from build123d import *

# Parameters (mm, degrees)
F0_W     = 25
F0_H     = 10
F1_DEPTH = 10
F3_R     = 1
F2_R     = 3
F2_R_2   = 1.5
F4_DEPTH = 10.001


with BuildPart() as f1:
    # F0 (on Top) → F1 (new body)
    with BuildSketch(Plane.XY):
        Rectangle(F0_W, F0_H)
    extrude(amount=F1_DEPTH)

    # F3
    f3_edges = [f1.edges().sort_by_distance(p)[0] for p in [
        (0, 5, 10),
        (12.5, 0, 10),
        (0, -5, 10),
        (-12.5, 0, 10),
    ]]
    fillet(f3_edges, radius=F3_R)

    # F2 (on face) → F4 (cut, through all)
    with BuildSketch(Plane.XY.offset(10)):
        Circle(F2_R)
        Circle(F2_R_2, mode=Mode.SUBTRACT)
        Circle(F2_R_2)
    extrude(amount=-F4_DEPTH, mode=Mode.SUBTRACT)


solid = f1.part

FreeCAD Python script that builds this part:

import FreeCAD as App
import Part
import Sketcher

V = App.Vector


def edges_at(feature, points):
    """Names of the edges that pass closest to the given points."""
    edges = feature.Shape.Edges
    near = lambda p: min(range(len(edges)), key=lambda i: edges[i].distToShape(Part.Vertex(*p))[0])
    return sorted({f"Edge{near(p) + 1}" for p in points})

doc = App.newDocument("Part")
body = doc.addObject("PartDesign::Body", "Body")

# Sketch on XY plane
sketch1 = body.newObject("Sketcher::SketchObject", "Sketch")
sketch1.AttachmentSupport = (doc.getObject("XY_Plane"), [""])
sketch1.MapMode = "FlatFace"
sketch1.addGeometry([
    Part.LineSegment(V(-12.5, 5, 0), V(-12.5, -5, 0)),
    Part.LineSegment(V(-12.5, -5, 0), V(12.5, -5, 0)),
    Part.LineSegment(V(12.5, -5, 0), V(12.5, 5, 0)),
    Part.LineSegment(V(12.5, 5, 0), V(-12.5, 5, 0)),
], False)
sketch1.addConstraint([
    Sketcher.Constraint("Coincident", 0, 2, 1, 1),
    Sketcher.Constraint("Coincident", 1, 2, 2, 1),
    Sketcher.Constraint("Coincident", 2, 2, 3, 1),
    Sketcher.Constraint("Coincident", 3, 2, 0, 1),
    Sketcher.Constraint("Vertical", 0),
    Sketcher.Constraint("Horizontal", 1),
    Sketcher.Constraint("Vertical", 2),
    Sketcher.Constraint("Horizontal", 3),
    Sketcher.Constraint("Symmetric", 0, 2, 2, 2, -1, 1),
    Sketcher.Constraint("DistanceX", 1, 1, 1, 2, 25.0),
    Sketcher.Constraint("DistanceY", 0, 2, 0, 1, 10.0),
])
pad1 = body.newObject("PartDesign::Pad", "Pad")
pad1.Profile = sketch1
pad1.Length = 10
doc.recompute()

fillet = body.newObject("PartDesign::Fillet", "Fillet")
fillet.Base = (pad1, edges_at(pad1, [
    (0, 5, 10),
    (12.5, 0, 10),
    (0, -5, 10),
    (-12.5, 0, 10),
]))
fillet.Radius = 1

# Sketch on XY plane
sketch2 = body.newObject("Sketcher::SketchObject", "Sketch001")
sketch2.AttachmentSupport = (doc.getObject("XY_Plane"), [""])
sketch2.MapMode = "FlatFace"
sketch2.AttachmentOffset = App.Placement(V(0, 0, 10), App.Rotation())
sketch2.addGeometry(Part.Circle(V(0, 0, 0), V(0, 0, 1), 3), False)
sketch2.addConstraint([
    Sketcher.Constraint("Coincident", 0, 3, -1, 1),
    Sketcher.Constraint("Diameter", 0, 6.0),
])
pocket1 = body.newObject("PartDesign::Pocket", "Pocket")
pocket1.Profile = sketch2
pocket1.Type = "ThroughAll"

doc.recompute()
